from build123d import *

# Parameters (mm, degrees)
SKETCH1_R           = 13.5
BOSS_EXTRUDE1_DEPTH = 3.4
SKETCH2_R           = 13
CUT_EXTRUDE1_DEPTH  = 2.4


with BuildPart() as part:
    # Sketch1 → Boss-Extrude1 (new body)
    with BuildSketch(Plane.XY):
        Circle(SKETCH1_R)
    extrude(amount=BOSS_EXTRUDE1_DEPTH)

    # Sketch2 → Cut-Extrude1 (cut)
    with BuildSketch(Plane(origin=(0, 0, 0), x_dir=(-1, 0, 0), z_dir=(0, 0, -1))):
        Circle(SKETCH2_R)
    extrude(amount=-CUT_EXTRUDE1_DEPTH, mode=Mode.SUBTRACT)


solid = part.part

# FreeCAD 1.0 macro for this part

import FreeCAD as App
import Part
import Sketcher
from FreeCAD import Vector
Q = App.Units.Quantity

doc = App.newDocument("Part")
body = doc.addObject("PartDesign::Body", "Body")

# Sketch on XY plane
sketch1 = doc.addObject("Sketcher::SketchObject", "Sketch")
body.addObject(sketch1)
sketch1.AttachmentSupport = (doc.XY_Plane, [""])
sketch1.MapMode = "FlatFace"
sketch1.addGeometry(Part.Circle(Vector(0, 0, 0), Vector(0, 0, 1), 14), False)
sketch1.addConstraint([
    Sketcher.Constraint("Coincident", 0, 3, -1, 1),
    Sketcher.Constraint("Diameter", 0, Q("27 mm")),
])
pad1 = doc.addObject("PartDesign::Pad", "Pad")
body.addObject(pad1)
pad1.Profile = sketch1
pad1.Length = 3.4

# Sketch on XY plane
sketch2 = doc.addObject("Sketcher::SketchObject", "Sketch001")
body.addObject(sketch2)
sketch2.AttachmentSupport = (doc.XY_Plane, [""])
sketch2.MapMode = "FlatFace"
sketch2.addGeometry(Part.Circle(Vector(0, 0, 0), Vector(0, 0, 1), 13), False)
sketch2.addConstraint([
    Sketcher.Constraint("Coincident", 0, 3, -1, 1),
    Sketcher.Constraint("Diameter", 0, Q("26 mm")),
])
pocket1 = doc.addObject("PartDesign::Pocket", "Pocket")
body.addObject(pocket1)
pocket1.Profile = sketch2
pocket1.Length = 2.4
pocket1.Reversed = True

doc.recompute()
